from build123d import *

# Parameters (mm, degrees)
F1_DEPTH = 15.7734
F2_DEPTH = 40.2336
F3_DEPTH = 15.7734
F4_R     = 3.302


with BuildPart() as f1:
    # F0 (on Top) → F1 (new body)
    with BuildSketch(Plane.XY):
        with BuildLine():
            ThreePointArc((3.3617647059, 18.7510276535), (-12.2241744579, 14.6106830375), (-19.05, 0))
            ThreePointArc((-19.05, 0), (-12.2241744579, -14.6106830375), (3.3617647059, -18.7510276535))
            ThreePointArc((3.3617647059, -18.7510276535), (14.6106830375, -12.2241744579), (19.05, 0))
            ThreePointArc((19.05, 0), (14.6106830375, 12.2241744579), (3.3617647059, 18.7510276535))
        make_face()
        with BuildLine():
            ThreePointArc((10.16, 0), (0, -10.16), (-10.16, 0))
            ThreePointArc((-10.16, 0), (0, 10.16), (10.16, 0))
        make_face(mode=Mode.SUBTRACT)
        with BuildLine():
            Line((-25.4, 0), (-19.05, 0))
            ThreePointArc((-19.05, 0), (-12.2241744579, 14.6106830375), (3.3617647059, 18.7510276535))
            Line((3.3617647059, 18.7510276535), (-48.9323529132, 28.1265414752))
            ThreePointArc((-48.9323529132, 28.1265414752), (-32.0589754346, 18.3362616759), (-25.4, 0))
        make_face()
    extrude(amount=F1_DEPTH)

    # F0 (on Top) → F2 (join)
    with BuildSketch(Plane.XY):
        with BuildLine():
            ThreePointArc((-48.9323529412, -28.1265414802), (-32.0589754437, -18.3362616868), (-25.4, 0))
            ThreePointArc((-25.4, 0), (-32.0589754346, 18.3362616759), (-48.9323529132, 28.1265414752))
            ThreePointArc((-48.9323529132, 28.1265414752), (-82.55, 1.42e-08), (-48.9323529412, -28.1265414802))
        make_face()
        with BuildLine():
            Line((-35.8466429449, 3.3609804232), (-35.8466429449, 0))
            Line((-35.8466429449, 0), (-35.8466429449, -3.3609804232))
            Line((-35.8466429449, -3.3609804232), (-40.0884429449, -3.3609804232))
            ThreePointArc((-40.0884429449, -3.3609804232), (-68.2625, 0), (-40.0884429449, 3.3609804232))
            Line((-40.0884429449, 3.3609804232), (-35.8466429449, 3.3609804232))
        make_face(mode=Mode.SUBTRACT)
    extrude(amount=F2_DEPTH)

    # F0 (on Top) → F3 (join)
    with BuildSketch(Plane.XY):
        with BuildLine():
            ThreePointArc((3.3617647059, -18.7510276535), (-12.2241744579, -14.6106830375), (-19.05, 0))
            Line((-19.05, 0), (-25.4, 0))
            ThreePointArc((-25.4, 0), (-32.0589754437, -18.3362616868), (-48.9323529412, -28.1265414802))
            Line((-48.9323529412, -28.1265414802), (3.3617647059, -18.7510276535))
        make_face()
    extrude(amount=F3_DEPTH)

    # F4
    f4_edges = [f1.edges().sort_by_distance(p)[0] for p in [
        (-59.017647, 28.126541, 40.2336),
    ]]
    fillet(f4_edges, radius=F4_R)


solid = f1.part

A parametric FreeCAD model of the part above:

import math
import FreeCAD as App
import Part
import Sketcher

V = App.Vector
Q = App.Units.Quantity


def edges_at(feature, points):
    """Names of the edges that pass closest to the given points."""
    edges = feature.Shape.Edges
    near = lambda p: min(range(len(edges)), key=lambda i: edges[i].distToShape(Part.Vertex(*p))[0])
    return sorted({f"Edge{near(p) + 1}" for p in points})

doc = App.newDocument("Part")
body = doc.addObject("PartDesign::Body", "Body")

# Sketch on XY plane
sketch1 = body.newObject("Sketcher::SketchObject", "Sketch")
sketch1.AttachmentSupport = (doc.getObject("XY_Plane"), [""])
sketch1.MapMode = "FlatFace"
sketch1.addGeometry(Part.ArcOfCircle(Part.Circle(V(0, 0, 0), V(0, 0, 1), 19), math.radians(0), math.radians(80)), False)
sketch1.addGeometry(Part.LineSegment(V(3, 19, 0), V(-49, 28, 0)), False)
sketch1.addGeometry(Part.ArcOfCircle(Part.Circle(V(-54, 0, 0), V(0, 0, 1), 29), math.radians(0), math.radians(80)), False)
sketch1.addGeometry(Part.LineSegment(V(-25, 0, 0), V(-19, 0, 0)), False)
sketch1.addGeometry(Part.ArcOfCircle(Part.Circle(V(0, 0, 0), V(0, 0, 1), 19), math.radians(180), math.radians(280)), False)
sketch1.addGeometry(Part.ArcOfCircle(Part.Circle(V(0, 0, 0), V(0, 0, 1), 19), math.radians(-80), math.radians(0)), False)
sketch1.addGeometry(Part.Circle(V(0, 0, 0), V(0, 0, 1), 10), False)
sketch1.addConstraint(Sketcher.Constraint("Tangent", 0, 2, 1, 1))
sketch1.addConstraint(Sketcher.Constraint("Tangent", 1, 2, 2, 2))
sketch1.addConstraint(Sketcher.Constraint("Coincident", 2, 1, 3, 1))
sketch1.addConstraint(Sketcher.Constraint("Coincident", 3, 2, 4, 1))
sketch1.addConstraint(Sketcher.Constraint("Tangent", 4, 2, 5, 1))
sketch1.addConstraint(Sketcher.Constraint("Tangent", 5, 2, 0, 1))
sketch1.addConstraint(Sketcher.Constraint("Horizontal", 3))
sketch1.addConstraint(Sketcher.Constraint("Coincident", 0, 3, -1, 1))
sketch1.addConstraint(Sketcher.Constraint("Coincident", 4, 3, -1, 1))
sketch1.addConstraint(Sketcher.Constraint("Coincident", 6, 3, -1, 1))
sketch1.addConstraint(Sketcher.Constraint("PointOnObject", 2, 3, -1))
sketch1.addConstraint(Sketcher.Constraint("PointOnObject", 2, 1, -1))
sketch1.addConstraint(Sketcher.Constraint("PointOnObject", 5, 2, -1))
sketch1.addConstraint(Sketcher.Constraint("Vertical", 0, 2, 4, 2))
sketch1.addConstraint(Sketcher.Constraint("Diameter", 6, Q("0.8 in")))
sketch1.addConstraint(Sketcher.Constraint("Radius", 0, Q("0.75 in")))
sketch1.addConstraint(Sketcher.Constraint("DistanceX", 2, 1, -1, 1, Q("1 in")))
sketch1.addConstraint(Sketcher.Constraint("Radius", 2, Q("1.125 in")))
pad1 = body.newObject("PartDesign::Pad", "Pad")
pad1.Profile = sketch1
pad1.Length = Q("0.621 in")

# Sketch on XY plane
sketch2 = body.newObject("Sketcher::SketchObject", "Sketch001")
sketch2.AttachmentSupport = (doc.getObject("XY_Plane"), [""])
sketch2.MapMode = "FlatFace"
sketch2.addGeometry(Part.ArcOfCircle(Part.Circle(V(-54, 0, 0), V(0, 0, 1), 28.6), math.radians(-80), math.radians(0)), False)
sketch2.addGeometry(Part.ArcOfCircle(Part.Circle(V(-54, 0, 0), V(0, 0, 1), 28.6), math.radians(0), math.radians(280)), False)
sketch2.addGeometry(Part.LineSegment(V(-40.1, 3.4, 0), V(-35.8, 3.4, 0)), False)
sketch2.addGeometry(Part.LineSegment(V(-35.8, 3.4, 0), V(-35.8, -3.4, 0)), False)
sketch2.addGeometry(Part.LineSegment(V(-35.8, -3.4, 0), V(-40.1, -3.4, 0)), False)
sketch2.addGeometry(Part.ArcOfCircle(Part.Circle(V(-54, 0, 0), V(0, 0, 1), 14.3), math.radians(14), math.radians(346)), False)
sketch2.addConstraint(Sketcher.Constraint("Tangent", 0, 1, 1, 2))
sketch2.addConstraint(Sketcher.Constraint("Coincident", 1, 1, 0, 2))
sketch2.addConstraint(Sketcher.Constraint("Coincident", 2, 2, 3, 1))
sketch2.addConstraint(Sketcher.Constraint("Coincident", 3, 2, 4, 1))
sketch2.addConstraint(Sketcher.Constraint("Coincident", 4, 2, 5, 2))
sketch2.addConstraint(Sketcher.Constraint("Coincident", 5, 1, 2, 1))
sketch2.addConstraint(Sketcher.Constraint("Horizontal", 2))
sketch2.addConstraint(Sketcher.Constraint("Vertical", 3))
sketch2.addConstraint(Sketcher.Constraint("Horizontal", 4))
sketch2.addConstraint(Sketcher.Constraint("Coincident", 5, 3, 0, 3))
sketch2.addConstraint(Sketcher.Constraint("Symmetric", 4, 2, 5, 1, -1))
sketch2.addConstraint(Sketcher.Constraint("PointOnObject", 1, 1, -1))
sketch2.addConstraint(Sketcher.Constraint("DistanceX", 1, 1, -1, 1, Q("1 in")))
sketch2.addConstraint(Sketcher.Constraint("Radius", 0, Q("1.125 in")))
sketch2.addConstraint(Sketcher.Constraint("Radius", 5, Q("0.5625 in")))
sketch2.addConstraint(Sketcher.Constraint("DistanceX", 2, 1, 2, 2, Q("0.167 in")))
sketch2.addConstraint(Sketcher.Constraint("DistanceY", 3, 2, 3, 1, Q("6.721961 mm")))
sketch2.addConstraint(Sketcher.Constraint("DistanceY", 0, 1, -1, 1, Q("28.126541 mm")))
pad2 = body.newObject("PartDesign::Pad", "Pad001")
pad2.Profile = sketch2
pad2.Length = Q("1.584 in")

# Sketch on XY plane
sketch3 = body.newObject("Sketcher::SketchObject", "Sketch002")
sketch3.AttachmentSupport = (doc.getObject("XY_Plane"), [""])
sketch3.MapMode = "FlatFace"
sketch3.addGeometry(Part.ArcOfCircle(Part.Circle(V(0, 0, 0), V(0, 0, 1), 19), math.radians(180), math.radians(280)), False)
sketch3.addGeometry(Part.LineSegment(V(-19, 0, 0), V(-25, 0, 0)), False)
sketch3.addGeometry(Part.ArcOfCircle(Part.Circle(V(-54, 0, 0), V(0, 0, 1), 29), math.radians(-80), math.radians(0)), False)
sketch3.addGeometry(Part.LineSegment(V(-49, -28, 0), V(3, -19, 0)), False)
sketch3.addConstraint(Sketcher.Constraint("Coincident", 0, 1, 1, 1))
sketch3.addConstraint(Sketcher.Constraint("Coincident", 1, 2, 2, 2))
sketch3.addConstraint(Sketcher.Constraint("Tangent", 2, 1, 3, 1))
sketch3.addConstraint(Sketcher.Constraint("Tangent", 3, 2, 0, 2))
sketch3.addConstraint(Sketcher.Constraint("Horizontal", 1))
sketch3.addConstraint(Sketcher.Constraint("Coincident", 0, 3, -1, 1))
sketch3.addConstraint(Sketcher.Constraint("PointOnObject", 2, 3, -1))
sketch3.addConstraint(Sketcher.Constraint("PointOnObject", 0, 1, -1))
sketch3.addConstraint(Sketcher.Constraint("Radius", 0, Q("0.75 in")))
sketch3.addConstraint(Sketcher.Constraint("DistanceX", 1, 2, -1, 1, Q("1 in")))
sketch3.addConstraint(Sketcher.Constraint("Radius", 2, Q("1.125 in")))
pad3 = body.newObject("PartDesign::Pad", "Pad002")
pad3.Profile = sketch3
pad3.Length = Q("0.621 in")
doc.recompute()

fillet = body.newObject("PartDesign::Fillet", "Fillet")
fillet.Base = (pad3, edges_at(pad3, [(-75.891, 18.336, 40.234)]))
fillet.Radius = Q("0.13 in")

doc.recompute()
